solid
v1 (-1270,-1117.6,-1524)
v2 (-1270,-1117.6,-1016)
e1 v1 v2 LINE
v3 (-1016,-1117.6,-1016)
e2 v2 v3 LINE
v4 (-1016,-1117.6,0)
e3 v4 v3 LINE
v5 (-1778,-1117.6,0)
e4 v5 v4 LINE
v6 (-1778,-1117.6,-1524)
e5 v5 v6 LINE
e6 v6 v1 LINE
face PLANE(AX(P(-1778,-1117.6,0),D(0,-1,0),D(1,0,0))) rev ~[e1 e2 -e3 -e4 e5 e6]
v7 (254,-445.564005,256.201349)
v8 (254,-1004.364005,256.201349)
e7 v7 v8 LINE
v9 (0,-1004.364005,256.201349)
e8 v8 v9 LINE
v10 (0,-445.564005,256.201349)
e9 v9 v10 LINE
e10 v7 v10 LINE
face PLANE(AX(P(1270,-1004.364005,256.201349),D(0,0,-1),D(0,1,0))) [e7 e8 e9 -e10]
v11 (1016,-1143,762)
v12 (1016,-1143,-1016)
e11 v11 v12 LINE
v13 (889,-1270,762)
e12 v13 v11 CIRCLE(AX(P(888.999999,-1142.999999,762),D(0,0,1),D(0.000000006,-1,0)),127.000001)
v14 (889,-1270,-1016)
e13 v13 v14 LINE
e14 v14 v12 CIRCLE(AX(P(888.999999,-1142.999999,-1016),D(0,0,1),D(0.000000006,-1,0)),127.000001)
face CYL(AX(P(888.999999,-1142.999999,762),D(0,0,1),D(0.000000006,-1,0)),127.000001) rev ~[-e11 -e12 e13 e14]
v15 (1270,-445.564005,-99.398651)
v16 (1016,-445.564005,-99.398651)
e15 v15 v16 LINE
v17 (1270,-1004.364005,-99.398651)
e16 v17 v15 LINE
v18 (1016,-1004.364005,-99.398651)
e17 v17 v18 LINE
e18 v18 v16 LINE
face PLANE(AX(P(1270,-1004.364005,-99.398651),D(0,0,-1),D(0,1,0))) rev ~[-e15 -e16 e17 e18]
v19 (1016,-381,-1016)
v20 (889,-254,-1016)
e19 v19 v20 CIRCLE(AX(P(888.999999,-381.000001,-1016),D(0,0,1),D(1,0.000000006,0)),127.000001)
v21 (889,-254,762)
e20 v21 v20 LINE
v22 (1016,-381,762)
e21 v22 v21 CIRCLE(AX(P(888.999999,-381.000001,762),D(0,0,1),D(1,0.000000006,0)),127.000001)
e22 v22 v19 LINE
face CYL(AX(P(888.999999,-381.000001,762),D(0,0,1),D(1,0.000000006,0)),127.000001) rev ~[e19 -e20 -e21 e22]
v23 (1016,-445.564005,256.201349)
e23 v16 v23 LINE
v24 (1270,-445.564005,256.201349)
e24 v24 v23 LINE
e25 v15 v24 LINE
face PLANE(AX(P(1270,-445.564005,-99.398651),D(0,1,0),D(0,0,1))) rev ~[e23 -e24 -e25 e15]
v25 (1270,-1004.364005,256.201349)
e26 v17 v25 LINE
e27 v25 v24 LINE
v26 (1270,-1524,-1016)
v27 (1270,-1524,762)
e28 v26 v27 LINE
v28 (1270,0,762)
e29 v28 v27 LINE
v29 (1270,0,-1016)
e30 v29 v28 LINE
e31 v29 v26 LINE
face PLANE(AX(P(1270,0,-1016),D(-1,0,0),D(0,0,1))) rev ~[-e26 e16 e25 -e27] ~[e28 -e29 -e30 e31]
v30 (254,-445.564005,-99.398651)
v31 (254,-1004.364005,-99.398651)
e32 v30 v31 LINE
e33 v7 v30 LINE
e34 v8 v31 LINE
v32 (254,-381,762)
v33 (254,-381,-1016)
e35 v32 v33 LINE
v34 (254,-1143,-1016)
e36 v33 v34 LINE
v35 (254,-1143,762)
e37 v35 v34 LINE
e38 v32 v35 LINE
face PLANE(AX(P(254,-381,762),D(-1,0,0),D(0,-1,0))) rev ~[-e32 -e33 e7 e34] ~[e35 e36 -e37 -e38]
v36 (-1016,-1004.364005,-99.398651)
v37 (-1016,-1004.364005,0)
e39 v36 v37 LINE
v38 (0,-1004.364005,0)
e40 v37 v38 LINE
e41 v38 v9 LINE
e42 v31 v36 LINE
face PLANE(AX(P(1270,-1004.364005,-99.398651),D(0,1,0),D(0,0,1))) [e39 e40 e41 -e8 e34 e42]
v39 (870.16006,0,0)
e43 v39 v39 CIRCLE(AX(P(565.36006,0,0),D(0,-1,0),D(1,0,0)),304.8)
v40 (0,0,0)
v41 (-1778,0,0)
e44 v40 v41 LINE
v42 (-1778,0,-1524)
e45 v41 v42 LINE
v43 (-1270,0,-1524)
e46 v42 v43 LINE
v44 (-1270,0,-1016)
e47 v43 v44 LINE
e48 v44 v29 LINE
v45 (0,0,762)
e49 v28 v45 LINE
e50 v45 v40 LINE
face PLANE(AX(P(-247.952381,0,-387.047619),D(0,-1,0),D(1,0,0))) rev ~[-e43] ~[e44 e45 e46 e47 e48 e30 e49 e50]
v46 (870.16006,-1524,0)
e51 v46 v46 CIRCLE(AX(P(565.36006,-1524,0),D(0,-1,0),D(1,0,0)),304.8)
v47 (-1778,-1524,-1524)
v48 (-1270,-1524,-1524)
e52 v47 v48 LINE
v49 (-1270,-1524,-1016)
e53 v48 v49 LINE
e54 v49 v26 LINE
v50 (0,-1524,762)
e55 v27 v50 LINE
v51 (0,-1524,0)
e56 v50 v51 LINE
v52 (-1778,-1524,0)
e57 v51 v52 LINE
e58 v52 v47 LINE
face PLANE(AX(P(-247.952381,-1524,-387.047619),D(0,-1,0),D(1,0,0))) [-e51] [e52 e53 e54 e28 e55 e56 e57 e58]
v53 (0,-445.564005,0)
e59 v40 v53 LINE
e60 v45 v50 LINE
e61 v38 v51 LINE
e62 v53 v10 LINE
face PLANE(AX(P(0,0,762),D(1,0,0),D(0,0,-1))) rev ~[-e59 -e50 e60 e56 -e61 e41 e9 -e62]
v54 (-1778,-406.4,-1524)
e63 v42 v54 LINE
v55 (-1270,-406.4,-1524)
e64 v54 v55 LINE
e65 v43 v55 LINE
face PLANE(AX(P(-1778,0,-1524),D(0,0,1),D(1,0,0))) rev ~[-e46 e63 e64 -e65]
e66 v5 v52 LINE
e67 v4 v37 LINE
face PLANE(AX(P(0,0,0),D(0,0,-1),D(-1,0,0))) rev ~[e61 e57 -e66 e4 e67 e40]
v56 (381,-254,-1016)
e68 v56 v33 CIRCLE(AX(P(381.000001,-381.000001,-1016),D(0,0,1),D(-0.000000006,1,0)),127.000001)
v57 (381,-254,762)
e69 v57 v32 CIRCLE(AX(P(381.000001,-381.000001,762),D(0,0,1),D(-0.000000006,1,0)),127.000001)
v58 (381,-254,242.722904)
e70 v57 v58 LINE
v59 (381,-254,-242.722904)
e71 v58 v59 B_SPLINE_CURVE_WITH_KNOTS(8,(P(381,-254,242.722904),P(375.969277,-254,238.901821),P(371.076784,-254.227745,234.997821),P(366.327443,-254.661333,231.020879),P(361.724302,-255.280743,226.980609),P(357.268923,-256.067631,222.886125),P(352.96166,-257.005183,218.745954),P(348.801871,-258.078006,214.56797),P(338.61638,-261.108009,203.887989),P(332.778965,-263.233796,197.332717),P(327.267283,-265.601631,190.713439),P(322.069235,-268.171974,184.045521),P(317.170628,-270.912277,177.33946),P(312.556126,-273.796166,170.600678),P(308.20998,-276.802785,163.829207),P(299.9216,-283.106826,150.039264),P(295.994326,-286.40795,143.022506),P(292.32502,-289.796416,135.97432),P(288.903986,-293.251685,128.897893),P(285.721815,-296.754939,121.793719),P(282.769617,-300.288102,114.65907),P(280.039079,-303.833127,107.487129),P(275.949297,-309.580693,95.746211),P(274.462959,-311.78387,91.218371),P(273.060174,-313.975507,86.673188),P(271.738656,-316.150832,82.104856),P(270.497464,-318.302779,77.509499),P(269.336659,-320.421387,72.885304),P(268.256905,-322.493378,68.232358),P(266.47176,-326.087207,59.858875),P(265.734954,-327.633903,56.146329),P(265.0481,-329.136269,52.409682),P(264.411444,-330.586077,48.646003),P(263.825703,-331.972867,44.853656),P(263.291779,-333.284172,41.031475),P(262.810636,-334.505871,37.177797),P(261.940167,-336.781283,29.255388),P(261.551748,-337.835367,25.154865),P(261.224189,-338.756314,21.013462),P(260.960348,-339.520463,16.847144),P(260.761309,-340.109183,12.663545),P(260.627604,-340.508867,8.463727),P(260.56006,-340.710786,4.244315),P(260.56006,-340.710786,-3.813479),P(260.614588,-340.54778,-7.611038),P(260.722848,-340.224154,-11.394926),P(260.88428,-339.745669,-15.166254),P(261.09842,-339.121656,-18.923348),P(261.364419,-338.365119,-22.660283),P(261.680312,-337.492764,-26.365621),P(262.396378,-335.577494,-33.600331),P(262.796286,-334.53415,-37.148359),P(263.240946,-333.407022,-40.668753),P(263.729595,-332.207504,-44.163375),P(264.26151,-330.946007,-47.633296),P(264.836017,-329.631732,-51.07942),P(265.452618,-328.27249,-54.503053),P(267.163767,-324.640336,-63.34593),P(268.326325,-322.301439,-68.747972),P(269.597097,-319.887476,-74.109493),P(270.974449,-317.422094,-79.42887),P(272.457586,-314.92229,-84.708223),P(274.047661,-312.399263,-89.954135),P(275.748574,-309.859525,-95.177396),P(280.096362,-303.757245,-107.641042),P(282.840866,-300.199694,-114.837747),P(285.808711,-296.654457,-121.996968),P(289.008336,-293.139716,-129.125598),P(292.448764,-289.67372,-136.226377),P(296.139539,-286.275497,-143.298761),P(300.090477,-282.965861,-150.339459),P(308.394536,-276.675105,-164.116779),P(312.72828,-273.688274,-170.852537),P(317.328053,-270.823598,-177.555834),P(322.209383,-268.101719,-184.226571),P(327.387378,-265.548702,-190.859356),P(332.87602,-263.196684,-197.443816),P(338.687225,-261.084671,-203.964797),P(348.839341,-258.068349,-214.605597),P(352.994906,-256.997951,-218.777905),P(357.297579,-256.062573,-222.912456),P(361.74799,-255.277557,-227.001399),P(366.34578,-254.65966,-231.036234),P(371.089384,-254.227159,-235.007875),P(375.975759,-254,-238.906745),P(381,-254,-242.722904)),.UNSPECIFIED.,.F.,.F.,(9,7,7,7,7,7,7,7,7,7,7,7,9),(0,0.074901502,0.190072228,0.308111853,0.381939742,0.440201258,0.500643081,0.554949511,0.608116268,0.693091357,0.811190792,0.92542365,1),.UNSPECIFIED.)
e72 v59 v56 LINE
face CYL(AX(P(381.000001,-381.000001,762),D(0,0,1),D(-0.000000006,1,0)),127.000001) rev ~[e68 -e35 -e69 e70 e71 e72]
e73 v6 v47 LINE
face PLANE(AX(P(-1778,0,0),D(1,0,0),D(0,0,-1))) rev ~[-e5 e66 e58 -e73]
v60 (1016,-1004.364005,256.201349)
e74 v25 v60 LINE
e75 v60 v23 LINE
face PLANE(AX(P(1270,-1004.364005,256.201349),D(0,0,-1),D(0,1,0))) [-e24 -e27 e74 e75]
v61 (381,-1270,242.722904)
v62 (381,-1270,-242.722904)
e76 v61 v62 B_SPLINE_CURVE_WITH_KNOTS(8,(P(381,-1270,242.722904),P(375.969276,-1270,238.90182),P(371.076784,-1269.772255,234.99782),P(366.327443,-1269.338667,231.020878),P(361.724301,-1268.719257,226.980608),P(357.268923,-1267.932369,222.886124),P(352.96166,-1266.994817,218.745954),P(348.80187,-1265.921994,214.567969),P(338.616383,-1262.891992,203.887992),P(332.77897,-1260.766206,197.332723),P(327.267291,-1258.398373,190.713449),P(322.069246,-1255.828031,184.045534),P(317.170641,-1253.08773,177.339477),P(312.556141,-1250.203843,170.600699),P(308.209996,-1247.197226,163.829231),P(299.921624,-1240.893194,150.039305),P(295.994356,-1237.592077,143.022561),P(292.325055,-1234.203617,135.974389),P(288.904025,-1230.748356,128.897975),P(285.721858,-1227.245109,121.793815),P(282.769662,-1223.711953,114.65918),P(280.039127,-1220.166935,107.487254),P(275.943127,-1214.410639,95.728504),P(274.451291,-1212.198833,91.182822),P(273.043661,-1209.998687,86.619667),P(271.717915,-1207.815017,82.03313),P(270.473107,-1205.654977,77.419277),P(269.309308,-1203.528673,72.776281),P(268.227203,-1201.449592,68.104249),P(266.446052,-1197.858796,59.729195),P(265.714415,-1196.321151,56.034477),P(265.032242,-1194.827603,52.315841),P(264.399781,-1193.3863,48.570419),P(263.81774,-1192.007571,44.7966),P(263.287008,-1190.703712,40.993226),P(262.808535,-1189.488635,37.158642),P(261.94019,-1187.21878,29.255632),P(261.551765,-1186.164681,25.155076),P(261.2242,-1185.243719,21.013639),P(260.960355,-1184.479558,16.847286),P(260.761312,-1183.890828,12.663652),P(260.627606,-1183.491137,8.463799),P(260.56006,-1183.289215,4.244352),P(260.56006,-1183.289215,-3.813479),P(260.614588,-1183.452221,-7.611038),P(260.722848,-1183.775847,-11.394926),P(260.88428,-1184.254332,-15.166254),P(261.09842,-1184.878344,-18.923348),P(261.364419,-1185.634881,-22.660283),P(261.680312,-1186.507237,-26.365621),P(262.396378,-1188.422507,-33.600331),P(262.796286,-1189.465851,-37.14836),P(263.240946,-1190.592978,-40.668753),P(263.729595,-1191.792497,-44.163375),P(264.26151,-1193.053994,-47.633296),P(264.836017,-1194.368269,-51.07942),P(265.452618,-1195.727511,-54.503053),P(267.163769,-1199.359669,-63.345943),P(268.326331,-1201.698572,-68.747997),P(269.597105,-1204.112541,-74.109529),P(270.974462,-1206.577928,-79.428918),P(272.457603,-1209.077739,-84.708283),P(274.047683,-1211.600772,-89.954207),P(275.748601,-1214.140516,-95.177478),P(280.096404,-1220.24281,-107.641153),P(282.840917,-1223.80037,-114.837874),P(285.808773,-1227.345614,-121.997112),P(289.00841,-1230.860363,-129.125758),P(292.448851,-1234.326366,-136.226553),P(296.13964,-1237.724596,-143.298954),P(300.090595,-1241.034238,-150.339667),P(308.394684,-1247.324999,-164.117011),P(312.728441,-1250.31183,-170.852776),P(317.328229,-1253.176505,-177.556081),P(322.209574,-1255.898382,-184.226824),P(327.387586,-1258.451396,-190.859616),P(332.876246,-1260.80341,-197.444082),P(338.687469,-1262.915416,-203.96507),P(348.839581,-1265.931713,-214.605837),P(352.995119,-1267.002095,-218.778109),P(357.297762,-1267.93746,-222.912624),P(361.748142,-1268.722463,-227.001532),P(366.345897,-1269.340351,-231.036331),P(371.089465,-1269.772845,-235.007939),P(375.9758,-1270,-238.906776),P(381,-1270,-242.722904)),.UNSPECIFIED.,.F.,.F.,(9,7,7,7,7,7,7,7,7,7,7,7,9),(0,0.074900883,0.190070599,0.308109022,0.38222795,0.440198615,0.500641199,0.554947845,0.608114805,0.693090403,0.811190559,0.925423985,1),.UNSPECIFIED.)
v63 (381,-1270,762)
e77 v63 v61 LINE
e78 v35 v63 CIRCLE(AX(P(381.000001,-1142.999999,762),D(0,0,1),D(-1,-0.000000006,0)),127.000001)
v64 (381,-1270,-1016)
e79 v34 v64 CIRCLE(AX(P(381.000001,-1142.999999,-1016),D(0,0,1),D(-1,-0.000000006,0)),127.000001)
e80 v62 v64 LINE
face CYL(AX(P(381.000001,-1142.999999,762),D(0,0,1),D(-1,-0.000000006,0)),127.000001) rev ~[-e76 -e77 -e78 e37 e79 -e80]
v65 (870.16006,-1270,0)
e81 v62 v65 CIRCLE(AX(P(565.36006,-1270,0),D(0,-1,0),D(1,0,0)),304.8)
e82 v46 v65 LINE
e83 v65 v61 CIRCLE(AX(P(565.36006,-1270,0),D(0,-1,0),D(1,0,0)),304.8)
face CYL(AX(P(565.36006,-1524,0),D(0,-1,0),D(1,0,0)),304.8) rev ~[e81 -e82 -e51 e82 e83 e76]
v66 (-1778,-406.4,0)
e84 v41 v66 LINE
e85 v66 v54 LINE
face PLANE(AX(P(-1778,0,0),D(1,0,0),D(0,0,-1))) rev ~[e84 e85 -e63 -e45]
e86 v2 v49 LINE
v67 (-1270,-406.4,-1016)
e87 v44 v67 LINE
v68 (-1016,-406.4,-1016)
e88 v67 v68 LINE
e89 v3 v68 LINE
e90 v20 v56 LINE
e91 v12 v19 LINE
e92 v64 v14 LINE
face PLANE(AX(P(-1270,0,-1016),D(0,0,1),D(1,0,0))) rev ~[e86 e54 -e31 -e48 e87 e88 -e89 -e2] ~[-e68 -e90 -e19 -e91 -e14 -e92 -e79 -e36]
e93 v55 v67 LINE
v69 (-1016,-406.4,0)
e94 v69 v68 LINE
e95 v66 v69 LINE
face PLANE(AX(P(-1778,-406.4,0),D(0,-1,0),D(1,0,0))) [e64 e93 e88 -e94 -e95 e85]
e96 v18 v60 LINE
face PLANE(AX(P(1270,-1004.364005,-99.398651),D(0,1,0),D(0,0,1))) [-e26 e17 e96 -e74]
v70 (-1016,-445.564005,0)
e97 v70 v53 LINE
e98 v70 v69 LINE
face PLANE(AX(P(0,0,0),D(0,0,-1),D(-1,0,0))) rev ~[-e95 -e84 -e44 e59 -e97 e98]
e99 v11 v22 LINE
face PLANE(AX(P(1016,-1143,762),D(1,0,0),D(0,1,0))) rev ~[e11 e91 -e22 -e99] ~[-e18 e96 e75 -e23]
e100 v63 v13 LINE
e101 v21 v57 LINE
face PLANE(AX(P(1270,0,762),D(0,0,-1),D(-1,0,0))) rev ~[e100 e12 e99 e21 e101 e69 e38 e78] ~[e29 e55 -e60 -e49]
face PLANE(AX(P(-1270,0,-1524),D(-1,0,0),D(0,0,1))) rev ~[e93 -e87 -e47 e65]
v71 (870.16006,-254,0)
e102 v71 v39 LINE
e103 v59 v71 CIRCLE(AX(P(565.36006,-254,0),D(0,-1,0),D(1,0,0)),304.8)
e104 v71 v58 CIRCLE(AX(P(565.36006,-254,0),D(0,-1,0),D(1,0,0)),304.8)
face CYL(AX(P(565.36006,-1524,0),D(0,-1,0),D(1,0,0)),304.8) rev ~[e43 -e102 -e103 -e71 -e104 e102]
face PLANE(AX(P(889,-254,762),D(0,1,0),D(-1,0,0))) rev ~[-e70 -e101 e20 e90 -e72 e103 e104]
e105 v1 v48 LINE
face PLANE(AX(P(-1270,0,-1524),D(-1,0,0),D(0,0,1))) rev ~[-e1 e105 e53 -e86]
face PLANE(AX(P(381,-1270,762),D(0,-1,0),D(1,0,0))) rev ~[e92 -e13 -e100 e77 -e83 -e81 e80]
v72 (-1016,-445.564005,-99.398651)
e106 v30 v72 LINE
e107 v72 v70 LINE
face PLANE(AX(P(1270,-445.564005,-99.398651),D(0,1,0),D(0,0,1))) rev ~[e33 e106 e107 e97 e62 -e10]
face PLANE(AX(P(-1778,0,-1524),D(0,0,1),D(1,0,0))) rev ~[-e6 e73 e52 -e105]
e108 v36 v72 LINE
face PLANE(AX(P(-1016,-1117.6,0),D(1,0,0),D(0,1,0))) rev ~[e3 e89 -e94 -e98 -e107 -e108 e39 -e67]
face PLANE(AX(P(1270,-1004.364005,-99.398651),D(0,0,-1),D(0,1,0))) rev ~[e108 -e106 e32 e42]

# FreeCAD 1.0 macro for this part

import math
import FreeCAD as App
import Part
import Sketcher
from FreeCAD import Vector
Q = App.Units.Quantity


def add_polygon(sketch, points):
    """Adds a closed chain of lines whose ends are joined by coincident constraints."""
    first, n = sketch.GeometryCount, len(points)
    for a, b in zip(points, points[1:] + points[:1]):
        sketch.addGeometry(Part.LineSegment(App.Vector(*a, 0), App.Vector(*b, 0)), False)
    for i in range(n):
        sketch.addConstraint(Sketcher.Constraint("Coincident", first + i, 2, first + (i + 1) % n, 1))

doc = App.newDocument("Part")
body = doc.addObject("PartDesign::Body", "Body")

# Sketch on XZ plane
sketch1 = doc.addObject("Sketcher::SketchObject", "Sketch")
body.addObject(sketch1)
sketch1.AttachmentSupport = (doc.XZ_Plane, [""])
sketch1.MapMode = "FlatFace"
add_polygon(sketch1, [(0, 762), (0, 0), (-1778, 0), (-1778, -1524), (-1270, -1524), (-1270, -1016), (1270, -1016), (1270, 762)])  # lines 0-7
sketch1.addConstraint(Sketcher.Constraint("Vertical", 0))
sketch1.addConstraint(Sketcher.Constraint("Horizontal", 1))
sketch1.addConstraint(Sketcher.Constraint("Vertical", 2))
sketch1.addConstraint(Sketcher.Constraint("Horizontal", 3))
sketch1.addConstraint(Sketcher.Constraint("Vertical", 4))
sketch1.addConstraint(Sketcher.Constraint("Horizontal", 5))
sketch1.addConstraint(Sketcher.Constraint("Vertical", 6))
sketch1.addConstraint(Sketcher.Constraint("Horizontal", 7))
sketch1.addConstraint(Sketcher.Constraint("Coincident", 0, 2, -1, 1))
sketch1.addConstraint(Sketcher.Constraint("Equal", 3, 4))
sketch1.addConstraint(Sketcher.Constraint("Equal", 1, 6))
sketch1.addConstraint(Sketcher.Constraint("DistanceX", 1, 2, 1, 1, Q("70 in")))
sketch1.addConstraint(Sketcher.Constraint("DistanceX", 3, 1, 3, 2, Q("20 in")))
sketch1.addConstraint(Sketcher.Constraint("DistanceX", 5, 1, 5, 2, Q("100 in")))
sketch1.addConstraint(Sketcher.Constraint("DistanceY", 0, 2, 0, 1, Q("30 in")))
pad1 = doc.addObject("PartDesign::Pad", "Pad")
body.addObject(pad1)
pad1.Profile = sketch1
pad1.Length = Q("60 in")

# Sketch on XY plane
sketch2 = doc.addObject("Sketcher::SketchObject", "Sketch001")
body.addObject(sketch2)
sketch2.AttachmentSupport = (doc.XY_Plane, [""])
sketch2.MapMode = "FlatFace"
add_polygon(sketch2, [(-1778, -406.4), (-1778, -1117.6), (-1016, -1117.6), (-1016, -406.4)])  # lines 0-3
sketch2.addConstraint(Sketcher.Constraint("Vertical", 0))
sketch2.addConstraint(Sketcher.Constraint("Horizontal", 1))
sketch2.addConstraint(Sketcher.Constraint("Vertical", 2))
sketch2.addConstraint(Sketcher.Constraint("Horizontal", 3))
sketch2.addConstraint(Sketcher.Constraint("DistanceX", 1, 1, 1, 2, Q("30 in")))
sketch2.addConstraint(Sketcher.Constraint("DistanceY", 0, 2, 0, 1, Q("28 in")))
sketch2.addConstraint(Sketcher.Constraint("DistanceX", 0, 2, -1, 1, Q("70 in")))
sketch2.addConstraint(Sketcher.Constraint("DistanceY", 0, 2, -1, 1, Q("44 in")))
pocket1 = doc.addObject("PartDesign::Pocket", "Pocket")
body.addObject(pocket1)
pocket1.Profile = sketch2
pocket1.Length = Q("60 in")

# Sketch on XZ plane
sketch3 = doc.addObject("Sketcher::SketchObject", "Sketch002")
body.addObject(sketch3)
sketch3.AttachmentSupport = (doc.XZ_Plane, [""])
sketch3.MapMode = "FlatFace"
sketch3.AttachmentOffset = App.Placement(Vector(0, 0, 60 * 25.4), App.Rotation())
sketch3.addGeometry(Part.Circle(Vector(565.36006, 0, 0), Vector(0, 0, 1), 304.8), False)
sketch3.addConstraint(Sketcher.Constraint("PointOnObject", 0, 3, -1))
sketch3.addConstraint(Sketcher.Constraint("Diameter", 0, Q("24 in")))
sketch3.addConstraint(Sketcher.Constraint("DistanceX", -1, 1, 0, 3, Q("565.36006 mm")))
pocket2 = doc.addObject("PartDesign::Pocket", "Pocket001")
body.addObject(pocket2)
pocket2.Profile = sketch3
pocket2.Length = Q("60 in")

# Sketch on XY plane
sketch4 = doc.addObject("Sketcher::SketchObject", "Sketch003")
body.addObject(sketch4)
sketch4.AttachmentSupport = (doc.XY_Plane, [""])
sketch4.MapMode = "FlatFace"
sketch4.AttachmentOffset = App.Placement(Vector(0, 0, 30 * 25.4), App.Rotation())
sketch4.addGeometry(Part.LineSegment(Vector(381, -1270, 0), Vector(889, -1270, 0)), False)
sketch4.addGeometry(Part.ArcOfCircle(Part.Circle(Vector(888.999999, -1142.999999, 0), Vector(0, 0, 1), 127.000001), math.radians(-90), math.radians(0)), False)
sketch4.addGeometry(Part.LineSegment(Vector(1016, -1143, 0), Vector(1016, -381, 0)), False)
sketch4.addGeometry(Part.ArcOfCircle(Part.Circle(Vector(888.999999, -381.000001, 0), Vector(0, 0, 1), 127.000001), math.radians(0), math.radians(90)), False)
sketch4.addGeometry(Part.LineSegment(Vector(889, -254, 0), Vector(381, -254, 0)), False)
sketch4.addGeometry(Part.ArcOfCircle(Part.Circle(Vector(381.000001, -381.000001, 0), Vector(0, 0, 1), 127.000001), math.radians(90), math.radians(180)), False)
sketch4.addGeometry(Part.LineSegment(Vector(254, -381, 0), Vector(254, -1143, 0)), False)
sketch4.addGeometry(Part.ArcOfCircle(Part.Circle(Vector(381.000001, -1142.999999, 0), Vector(0, 0, 1), 127.000001), math.radians(-180), math.radians(-90)), False)
sketch4.addConstraint(Sketcher.Constraint("Tangent", 0, 2, 1, 1))
sketch4.addConstraint(Sketcher.Constraint("Tangent", 1, 2, 2, 1))
sketch4.addConstraint(Sketcher.Constraint("Tangent", 2, 2, 3, 1))
sketch4.addConstraint(Sketcher.Constraint("Tangent", 3, 2, 4, 1))
sketch4.addConstraint(Sketcher.Constraint("Tangent", 4, 2, 5, 1))
sketch4.addConstraint(Sketcher.Constraint("Tangent", 5, 2, 6, 1))
sketch4.addConstraint(Sketcher.Constraint("Tangent", 6, 2, 7, 1))
sketch4.addConstraint(Sketcher.Constraint("Tangent", 7, 2, 0, 1))
sketch4.addConstraint(Sketcher.Constraint("Horizontal", 0))
sketch4.addConstraint(Sketcher.Constraint("Vertical", 2))
sketch4.addConstraint(Sketcher.Constraint("Horizontal", 4))
sketch4.addConstraint(Sketcher.Constraint("Vertical", 6))
sketch4.addConstraint(Sketcher.Constraint("Equal", 1, 3))
sketch4.addConstraint(Sketcher.Constraint("Equal", 3, 5))
sketch4.addConstraint(Sketcher.Constraint("Equal", 5, 7))
sketch4.addConstraint(Sketcher.Constraint("Radius", 1, Q("5 in")))
sketch4.addConstraint(Sketcher.Constraint("DistanceX", 0, 1, 0, 2, Q("20 in")))
sketch4.addConstraint(Sketcher.Constraint("DistanceY", 2, 1, 2, 2, Q("30 in")))
sketch4.addConstraint(Sketcher.Constraint("DistanceX", -1, 1, 1, 3, Q("35 in")))
sketch4.addConstraint(Sketcher.Constraint("DistanceY", 1, 3, -1, 1, Q("45 in")))
pocket3 = doc.addObject("PartDesign::Pocket", "Pocket002")
body.addObject(pocket3)
pocket3.Profile = sketch4
pocket3.Type = "ThroughAll"

# Sketch on YZ plane
sketch5 = doc.addObject("Sketcher::SketchObject", "Sketch004")
body.addObject(sketch5)
sketch5.AttachmentSupport = (doc.YZ_Plane, [""])
sketch5.MapMode = "FlatFace"
sketch5.AttachmentOffset = App.Placement(Vector(0, 0, 50 * 25.4), App.Rotation())
add_polygon(sketch5, [(-1004.364005, 256.201349), (-1004.364005, -99.398651), (-445.564005, -99.398651), (-445.564005, 256.201349)])  # lines 0-3
sketch5.addConstraint(Sketcher.Constraint("Vertical", 0))
sketch5.addConstraint(Sketcher.Constraint("Horizontal", 1))
sketch5.addConstraint(Sketcher.Constraint("Vertical", 2))
sketch5.addConstraint(Sketcher.Constraint("Horizontal", 3))
sketch5.addConstraint(Sketcher.Constraint("DistanceX", 1, 1, 1, 2, Q("22 in")))
sketch5.addConstraint(Sketcher.Constraint("DistanceY", 0, 2, 0, 1, Q("14 in")))
sketch5.addConstraint(Sketcher.Constraint("DistanceY", 0, 2, -1, 1, Q("99.398651 mm")))
sketch5.addConstraint(Sketcher.Constraint("DistanceX", 0, 2, -1, 1, Q("1004.364005 mm")))
pocket4 = doc.addObject("PartDesign::Pocket", "Pocket003")
body.addObject(pocket4)
pocket4.Profile = sketch5
pocket4.Type = "ThroughAll"

doc.recompute()
